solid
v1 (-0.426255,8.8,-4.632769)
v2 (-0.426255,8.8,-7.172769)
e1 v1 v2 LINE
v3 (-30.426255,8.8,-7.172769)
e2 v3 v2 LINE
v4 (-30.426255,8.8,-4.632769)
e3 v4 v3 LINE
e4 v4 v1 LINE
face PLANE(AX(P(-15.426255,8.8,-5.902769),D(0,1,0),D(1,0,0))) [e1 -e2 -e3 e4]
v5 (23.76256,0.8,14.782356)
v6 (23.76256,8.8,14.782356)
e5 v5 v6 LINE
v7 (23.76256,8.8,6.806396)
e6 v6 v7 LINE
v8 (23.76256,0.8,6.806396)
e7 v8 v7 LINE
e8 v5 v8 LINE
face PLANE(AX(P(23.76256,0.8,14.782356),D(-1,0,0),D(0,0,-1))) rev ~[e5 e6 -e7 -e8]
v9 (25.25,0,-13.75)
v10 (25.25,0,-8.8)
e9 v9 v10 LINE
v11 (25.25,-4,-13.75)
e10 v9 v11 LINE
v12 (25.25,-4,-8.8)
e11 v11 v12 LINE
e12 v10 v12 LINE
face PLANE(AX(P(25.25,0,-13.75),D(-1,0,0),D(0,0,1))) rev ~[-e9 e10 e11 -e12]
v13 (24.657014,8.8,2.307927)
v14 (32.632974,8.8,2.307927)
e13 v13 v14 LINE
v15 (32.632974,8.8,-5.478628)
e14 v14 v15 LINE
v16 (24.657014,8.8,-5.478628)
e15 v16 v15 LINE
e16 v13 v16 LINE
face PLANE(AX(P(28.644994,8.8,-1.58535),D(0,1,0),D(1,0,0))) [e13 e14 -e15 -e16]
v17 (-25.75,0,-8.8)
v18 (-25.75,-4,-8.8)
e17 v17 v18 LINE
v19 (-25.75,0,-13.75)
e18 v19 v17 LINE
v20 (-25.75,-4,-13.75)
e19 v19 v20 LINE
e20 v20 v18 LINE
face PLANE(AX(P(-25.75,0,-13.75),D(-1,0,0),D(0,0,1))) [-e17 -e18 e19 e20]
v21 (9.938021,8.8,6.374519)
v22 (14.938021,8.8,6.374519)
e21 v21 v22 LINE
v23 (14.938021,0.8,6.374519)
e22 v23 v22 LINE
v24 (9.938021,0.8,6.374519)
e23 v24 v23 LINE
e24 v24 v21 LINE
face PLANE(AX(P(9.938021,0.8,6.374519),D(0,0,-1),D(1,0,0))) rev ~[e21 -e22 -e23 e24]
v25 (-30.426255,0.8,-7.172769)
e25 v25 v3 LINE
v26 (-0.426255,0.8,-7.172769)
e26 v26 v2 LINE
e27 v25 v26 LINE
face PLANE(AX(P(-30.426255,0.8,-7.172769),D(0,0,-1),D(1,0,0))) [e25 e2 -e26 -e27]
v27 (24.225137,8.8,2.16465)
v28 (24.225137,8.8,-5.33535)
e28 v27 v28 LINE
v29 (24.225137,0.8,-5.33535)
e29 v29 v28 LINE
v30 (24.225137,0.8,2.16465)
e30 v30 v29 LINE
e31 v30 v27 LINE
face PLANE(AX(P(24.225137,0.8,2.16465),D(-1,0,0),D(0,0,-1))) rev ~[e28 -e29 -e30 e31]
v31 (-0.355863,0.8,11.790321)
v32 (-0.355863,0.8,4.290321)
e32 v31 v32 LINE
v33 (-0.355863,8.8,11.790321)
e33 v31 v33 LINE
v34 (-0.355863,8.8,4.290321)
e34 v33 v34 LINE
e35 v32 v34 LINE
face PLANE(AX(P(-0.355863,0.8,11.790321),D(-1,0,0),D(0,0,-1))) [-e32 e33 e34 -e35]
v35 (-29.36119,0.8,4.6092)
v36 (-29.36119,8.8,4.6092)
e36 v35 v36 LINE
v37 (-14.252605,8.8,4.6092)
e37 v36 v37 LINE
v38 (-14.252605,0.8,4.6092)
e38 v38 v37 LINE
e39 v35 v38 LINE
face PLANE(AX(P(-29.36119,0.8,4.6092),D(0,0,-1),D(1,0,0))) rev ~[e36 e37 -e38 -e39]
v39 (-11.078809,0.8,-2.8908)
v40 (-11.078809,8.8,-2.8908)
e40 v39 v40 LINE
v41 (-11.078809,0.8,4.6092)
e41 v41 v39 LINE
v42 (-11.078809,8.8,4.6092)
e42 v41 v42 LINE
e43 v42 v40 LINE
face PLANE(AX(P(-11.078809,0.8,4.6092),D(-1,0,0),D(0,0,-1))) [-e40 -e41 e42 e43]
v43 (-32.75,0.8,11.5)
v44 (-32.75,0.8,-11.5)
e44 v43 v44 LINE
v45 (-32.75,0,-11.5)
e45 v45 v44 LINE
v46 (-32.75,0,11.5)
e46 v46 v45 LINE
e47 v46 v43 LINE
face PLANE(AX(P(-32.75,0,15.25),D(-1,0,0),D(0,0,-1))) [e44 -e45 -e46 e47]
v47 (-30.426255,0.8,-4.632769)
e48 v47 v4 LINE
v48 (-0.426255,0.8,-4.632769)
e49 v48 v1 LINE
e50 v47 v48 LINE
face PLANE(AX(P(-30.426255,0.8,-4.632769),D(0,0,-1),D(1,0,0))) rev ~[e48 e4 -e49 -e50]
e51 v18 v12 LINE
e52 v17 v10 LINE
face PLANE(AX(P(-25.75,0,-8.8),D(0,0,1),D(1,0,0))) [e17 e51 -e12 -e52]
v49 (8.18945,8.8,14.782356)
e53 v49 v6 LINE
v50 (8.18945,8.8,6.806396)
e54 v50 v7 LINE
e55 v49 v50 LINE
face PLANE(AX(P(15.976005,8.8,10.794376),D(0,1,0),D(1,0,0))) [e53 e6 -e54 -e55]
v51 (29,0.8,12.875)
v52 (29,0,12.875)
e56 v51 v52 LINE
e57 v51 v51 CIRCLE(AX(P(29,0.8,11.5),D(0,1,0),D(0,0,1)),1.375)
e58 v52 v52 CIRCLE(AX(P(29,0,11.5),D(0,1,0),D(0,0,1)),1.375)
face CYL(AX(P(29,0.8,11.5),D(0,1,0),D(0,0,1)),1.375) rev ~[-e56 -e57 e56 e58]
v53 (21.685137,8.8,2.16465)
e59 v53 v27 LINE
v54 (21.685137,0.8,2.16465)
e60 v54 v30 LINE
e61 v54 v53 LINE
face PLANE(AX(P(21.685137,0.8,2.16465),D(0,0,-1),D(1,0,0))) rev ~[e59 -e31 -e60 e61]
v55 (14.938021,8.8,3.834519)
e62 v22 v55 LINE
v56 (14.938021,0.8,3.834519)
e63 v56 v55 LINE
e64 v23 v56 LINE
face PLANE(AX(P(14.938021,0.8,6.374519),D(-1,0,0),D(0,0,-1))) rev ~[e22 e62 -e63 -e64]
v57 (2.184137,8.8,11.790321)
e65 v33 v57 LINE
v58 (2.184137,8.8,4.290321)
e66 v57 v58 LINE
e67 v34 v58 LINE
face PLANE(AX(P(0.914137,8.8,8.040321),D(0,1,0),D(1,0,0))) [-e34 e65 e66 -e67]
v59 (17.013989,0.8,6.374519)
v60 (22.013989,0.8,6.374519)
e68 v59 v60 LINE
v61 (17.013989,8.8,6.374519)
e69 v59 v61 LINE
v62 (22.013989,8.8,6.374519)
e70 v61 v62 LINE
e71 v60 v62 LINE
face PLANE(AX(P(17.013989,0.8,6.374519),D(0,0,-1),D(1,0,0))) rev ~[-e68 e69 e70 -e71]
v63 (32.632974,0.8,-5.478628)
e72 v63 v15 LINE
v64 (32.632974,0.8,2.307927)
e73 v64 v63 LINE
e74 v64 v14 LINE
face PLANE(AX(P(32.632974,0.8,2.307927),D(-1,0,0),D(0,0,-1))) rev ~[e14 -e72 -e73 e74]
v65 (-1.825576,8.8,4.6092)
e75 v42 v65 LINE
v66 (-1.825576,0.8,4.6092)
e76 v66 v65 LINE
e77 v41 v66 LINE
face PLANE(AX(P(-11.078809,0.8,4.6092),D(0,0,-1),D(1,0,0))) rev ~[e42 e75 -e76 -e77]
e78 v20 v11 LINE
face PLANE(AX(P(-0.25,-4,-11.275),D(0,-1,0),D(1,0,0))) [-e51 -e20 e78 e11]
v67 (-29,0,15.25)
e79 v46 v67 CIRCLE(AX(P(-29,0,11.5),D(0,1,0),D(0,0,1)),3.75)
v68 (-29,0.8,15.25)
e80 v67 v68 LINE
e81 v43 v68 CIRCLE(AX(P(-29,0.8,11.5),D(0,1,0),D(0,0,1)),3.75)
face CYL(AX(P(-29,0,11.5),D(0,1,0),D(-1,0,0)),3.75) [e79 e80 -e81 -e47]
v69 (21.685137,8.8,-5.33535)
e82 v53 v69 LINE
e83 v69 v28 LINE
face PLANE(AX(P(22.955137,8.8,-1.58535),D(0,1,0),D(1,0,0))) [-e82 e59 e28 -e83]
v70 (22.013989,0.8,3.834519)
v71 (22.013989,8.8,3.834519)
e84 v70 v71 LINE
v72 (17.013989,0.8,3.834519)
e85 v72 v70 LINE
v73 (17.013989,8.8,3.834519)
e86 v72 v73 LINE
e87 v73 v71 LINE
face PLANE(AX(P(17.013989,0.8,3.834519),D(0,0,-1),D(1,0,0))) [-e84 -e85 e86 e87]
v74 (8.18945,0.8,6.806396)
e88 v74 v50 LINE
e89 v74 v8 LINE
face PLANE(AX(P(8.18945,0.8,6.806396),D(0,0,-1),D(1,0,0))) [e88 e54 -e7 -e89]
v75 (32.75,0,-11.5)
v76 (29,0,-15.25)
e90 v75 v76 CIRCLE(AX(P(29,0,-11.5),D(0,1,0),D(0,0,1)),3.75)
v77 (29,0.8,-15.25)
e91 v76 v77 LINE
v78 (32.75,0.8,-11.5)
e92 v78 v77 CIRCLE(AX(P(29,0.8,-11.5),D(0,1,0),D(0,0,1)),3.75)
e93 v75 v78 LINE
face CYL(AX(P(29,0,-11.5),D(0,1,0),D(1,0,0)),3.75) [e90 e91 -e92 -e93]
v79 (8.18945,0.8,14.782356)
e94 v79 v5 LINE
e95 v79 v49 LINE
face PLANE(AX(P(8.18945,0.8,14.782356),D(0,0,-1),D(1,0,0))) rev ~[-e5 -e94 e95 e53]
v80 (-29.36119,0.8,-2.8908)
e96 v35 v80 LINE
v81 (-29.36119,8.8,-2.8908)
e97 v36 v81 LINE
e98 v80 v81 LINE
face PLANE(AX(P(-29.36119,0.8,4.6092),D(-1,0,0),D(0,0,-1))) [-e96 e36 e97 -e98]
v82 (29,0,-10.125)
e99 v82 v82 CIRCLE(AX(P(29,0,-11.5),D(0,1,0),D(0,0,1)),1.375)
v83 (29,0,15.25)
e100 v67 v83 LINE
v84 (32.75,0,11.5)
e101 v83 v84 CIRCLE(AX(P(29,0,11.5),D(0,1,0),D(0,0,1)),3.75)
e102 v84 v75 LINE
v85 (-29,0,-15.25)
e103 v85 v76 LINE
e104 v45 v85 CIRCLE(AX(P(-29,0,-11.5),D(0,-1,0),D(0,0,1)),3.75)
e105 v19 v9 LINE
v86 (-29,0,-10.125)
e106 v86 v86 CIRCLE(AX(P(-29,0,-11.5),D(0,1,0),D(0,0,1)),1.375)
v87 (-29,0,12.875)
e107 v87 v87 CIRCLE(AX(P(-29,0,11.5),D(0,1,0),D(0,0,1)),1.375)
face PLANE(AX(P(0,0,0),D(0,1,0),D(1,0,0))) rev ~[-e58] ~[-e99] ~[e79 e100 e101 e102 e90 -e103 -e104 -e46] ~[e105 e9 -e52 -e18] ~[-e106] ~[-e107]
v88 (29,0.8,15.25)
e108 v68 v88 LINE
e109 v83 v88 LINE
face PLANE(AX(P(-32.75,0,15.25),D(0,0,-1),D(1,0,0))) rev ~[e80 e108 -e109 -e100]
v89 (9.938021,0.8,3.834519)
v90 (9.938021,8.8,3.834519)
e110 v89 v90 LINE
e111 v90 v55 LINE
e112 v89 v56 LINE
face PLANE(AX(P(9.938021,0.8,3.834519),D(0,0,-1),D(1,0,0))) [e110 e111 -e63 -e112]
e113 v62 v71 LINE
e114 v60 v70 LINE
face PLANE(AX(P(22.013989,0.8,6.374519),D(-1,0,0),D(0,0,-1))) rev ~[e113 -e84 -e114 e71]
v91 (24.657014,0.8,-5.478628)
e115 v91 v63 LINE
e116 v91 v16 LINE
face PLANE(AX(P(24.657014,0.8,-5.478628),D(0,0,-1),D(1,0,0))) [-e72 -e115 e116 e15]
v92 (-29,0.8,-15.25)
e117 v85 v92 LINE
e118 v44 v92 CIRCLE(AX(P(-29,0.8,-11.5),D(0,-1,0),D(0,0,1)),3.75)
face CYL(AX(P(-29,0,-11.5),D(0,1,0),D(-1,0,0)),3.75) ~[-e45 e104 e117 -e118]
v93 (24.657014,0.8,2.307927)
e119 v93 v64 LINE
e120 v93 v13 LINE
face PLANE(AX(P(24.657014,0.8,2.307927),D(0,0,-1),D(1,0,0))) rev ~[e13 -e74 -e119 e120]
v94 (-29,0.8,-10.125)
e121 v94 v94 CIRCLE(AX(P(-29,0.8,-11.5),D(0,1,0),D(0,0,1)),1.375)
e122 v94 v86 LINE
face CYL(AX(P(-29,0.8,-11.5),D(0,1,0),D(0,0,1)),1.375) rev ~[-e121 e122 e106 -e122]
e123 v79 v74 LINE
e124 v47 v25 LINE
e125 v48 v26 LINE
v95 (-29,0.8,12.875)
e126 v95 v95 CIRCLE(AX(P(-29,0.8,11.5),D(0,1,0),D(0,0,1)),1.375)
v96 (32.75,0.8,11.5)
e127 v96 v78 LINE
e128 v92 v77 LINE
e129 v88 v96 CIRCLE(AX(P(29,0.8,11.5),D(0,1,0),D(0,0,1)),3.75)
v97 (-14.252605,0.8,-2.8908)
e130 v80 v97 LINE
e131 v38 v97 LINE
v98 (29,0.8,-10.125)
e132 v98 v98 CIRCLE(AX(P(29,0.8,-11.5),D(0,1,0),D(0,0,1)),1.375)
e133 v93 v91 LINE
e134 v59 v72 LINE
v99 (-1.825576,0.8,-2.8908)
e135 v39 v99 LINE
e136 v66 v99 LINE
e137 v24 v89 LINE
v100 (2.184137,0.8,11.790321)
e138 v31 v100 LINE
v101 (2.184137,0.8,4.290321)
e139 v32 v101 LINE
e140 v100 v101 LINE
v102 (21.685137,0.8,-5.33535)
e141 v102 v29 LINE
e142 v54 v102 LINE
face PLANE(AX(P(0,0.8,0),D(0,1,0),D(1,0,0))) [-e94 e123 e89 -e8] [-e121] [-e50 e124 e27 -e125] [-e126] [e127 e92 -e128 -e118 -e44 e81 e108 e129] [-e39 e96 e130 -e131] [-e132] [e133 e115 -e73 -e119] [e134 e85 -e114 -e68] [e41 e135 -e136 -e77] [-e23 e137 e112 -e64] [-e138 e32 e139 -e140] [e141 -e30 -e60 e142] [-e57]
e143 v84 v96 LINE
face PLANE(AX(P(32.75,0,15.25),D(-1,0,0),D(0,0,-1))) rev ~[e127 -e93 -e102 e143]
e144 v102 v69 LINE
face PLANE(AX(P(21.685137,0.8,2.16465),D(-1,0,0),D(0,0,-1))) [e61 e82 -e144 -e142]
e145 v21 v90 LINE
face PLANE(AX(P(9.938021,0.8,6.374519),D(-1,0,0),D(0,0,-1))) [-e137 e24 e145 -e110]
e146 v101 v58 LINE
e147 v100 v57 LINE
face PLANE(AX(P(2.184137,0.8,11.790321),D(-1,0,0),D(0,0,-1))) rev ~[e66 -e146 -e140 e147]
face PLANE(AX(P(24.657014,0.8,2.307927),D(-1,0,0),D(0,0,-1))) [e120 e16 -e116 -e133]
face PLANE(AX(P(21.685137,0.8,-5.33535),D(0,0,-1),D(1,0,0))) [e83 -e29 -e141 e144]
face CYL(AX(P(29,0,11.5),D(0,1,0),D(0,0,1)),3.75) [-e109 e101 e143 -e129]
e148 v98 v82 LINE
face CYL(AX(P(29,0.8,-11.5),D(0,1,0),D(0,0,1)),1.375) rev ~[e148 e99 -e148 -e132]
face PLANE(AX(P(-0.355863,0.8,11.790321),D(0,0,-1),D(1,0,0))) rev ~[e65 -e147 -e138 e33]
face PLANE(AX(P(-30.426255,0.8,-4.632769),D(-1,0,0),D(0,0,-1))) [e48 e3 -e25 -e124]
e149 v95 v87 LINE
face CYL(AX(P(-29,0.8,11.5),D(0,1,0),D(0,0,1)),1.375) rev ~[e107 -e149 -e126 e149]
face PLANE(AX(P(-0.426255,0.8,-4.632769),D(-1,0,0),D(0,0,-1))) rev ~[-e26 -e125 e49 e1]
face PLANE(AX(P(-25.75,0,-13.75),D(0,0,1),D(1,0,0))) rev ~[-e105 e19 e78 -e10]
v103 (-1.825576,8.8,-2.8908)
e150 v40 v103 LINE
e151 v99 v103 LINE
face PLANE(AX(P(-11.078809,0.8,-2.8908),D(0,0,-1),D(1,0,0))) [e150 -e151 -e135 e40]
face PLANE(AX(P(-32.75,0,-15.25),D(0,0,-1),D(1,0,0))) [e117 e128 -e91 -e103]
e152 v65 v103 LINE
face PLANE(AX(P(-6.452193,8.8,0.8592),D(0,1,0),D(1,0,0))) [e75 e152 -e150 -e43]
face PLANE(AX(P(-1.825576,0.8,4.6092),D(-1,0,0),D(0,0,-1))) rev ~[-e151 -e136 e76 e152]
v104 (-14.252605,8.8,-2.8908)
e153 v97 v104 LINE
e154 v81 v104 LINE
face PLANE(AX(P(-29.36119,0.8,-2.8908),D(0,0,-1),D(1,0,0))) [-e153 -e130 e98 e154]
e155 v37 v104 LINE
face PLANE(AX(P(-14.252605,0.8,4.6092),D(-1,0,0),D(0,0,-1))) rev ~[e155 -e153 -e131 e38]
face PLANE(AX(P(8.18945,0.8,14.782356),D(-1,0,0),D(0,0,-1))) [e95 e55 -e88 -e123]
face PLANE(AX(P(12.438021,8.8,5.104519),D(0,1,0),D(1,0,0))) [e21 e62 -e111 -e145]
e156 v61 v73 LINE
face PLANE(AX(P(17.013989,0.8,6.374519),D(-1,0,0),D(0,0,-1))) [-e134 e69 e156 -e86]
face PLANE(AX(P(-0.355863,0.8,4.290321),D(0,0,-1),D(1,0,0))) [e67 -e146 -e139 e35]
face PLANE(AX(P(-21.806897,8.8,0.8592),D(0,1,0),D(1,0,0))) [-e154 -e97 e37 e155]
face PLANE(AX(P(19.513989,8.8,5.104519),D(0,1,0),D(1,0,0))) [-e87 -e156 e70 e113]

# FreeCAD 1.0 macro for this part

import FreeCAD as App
import Part
import Sketcher

V = App.Vector


def edges_at(feature, points):
    """Names of the edges that pass closest to the given points."""
    edges = feature.Shape.Edges
    near = lambda p: min(range(len(edges)), key=lambda i: edges[i].distToShape(Part.Vertex(*p))[0])
    return sorted({f"Edge{near(p) + 1}" for p in points})


def add_polygon(sketch, points):
    """Adds a closed chain of lines whose ends are joined by coincident constraints."""
    first, n = sketch.GeometryCount, len(points)
    for a, b in zip(points, points[1:] + points[:1]):
        sketch.addGeometry(Part.LineSegment(App.Vector(*a, 0), App.Vector(*b, 0)), False)
    for i in range(n):
        sketch.addConstraint(Sketcher.Constraint("Coincident", first + i, 2, first + (i + 1) % n, 1))

doc = App.newDocument("Part")
params = doc.addObject("Spreadsheet::Sheet", "Params")
for row, (alias, value) in enumerate([
    ("sketch1_width", "65.5 mm"),
    ("sketch1_height", "30.5 mm"),
    ("pad1_length", "0.8 mm"),
    ("fillet_radius", "3.75 mm"),
    ("sketch2_diameter", "2.75 mm"),
    ("pocket1_length", "0.8 mm"),
    ("sketch3_width", "30 mm"),
    ("sketch3_width2", "5 mm"),
    ("sketch3_height", "7.5 mm"),
    ("sketch3_width3", "2.54 mm"),
    ("pad2_length", "8 mm"),
    ("sketch4_width", "51 mm"),
    ("sketch4_height", "4.95 mm"),
    ("pad3_length", "4 mm"),
], start=1):
    params.set(f"A{row}", alias)
    params.set(f"B{row}", "=" + value)
    params.setAlias(f"B{row}", alias)

body = doc.addObject("PartDesign::Body", "Body")

# Sketch on XZ plane
sketch1 = body.newObject("Sketcher::SketchObject", "Sketch")
sketch1.AttachmentSupport = (doc.getObject("XZ_Plane"), [""])
sketch1.MapMode = "FlatFace"
add_polygon(sketch1, [(-33, -15), (-33, 15), (33, 15), (33, -15)])  # lines 0-3
sketch1.addConstraint(Sketcher.Constraint("Vertical", 0))
sketch1.addConstraint(Sketcher.Constraint("Horizontal", 1))
sketch1.addConstraint(Sketcher.Constraint("Vertical", 2))
sketch1.addConstraint(Sketcher.Constraint("Horizontal", 3))
sketch1.addConstraint(Sketcher.Constraint("Symmetric", 0, 2, 2, 2, -1, 1))
sketch1.addConstraint(Sketcher.Constraint("DistanceX", 1, 1, 1, 2, 65.5))
sketch1.addConstraint(Sketcher.Constraint("DistanceY", 0, 1, 0, 2, 30.5))
sketch1.setExpression("Constraints[9]", "Params.sketch1_width")
sketch1.setExpression("Constraints[10]", "Params.sketch1_height")
pad1 = body.newObject("PartDesign::Pad", "Pad")
pad1.Profile = sketch1
pad1.setExpression("Length", "Params.pad1_length")
pad1.Reversed = True
doc.recompute()

fillet = body.newObject("PartDesign::Fillet", "Fillet")
fillet.Base = (pad1, edges_at(pad1, [
    (-32.75, 0.4, -15.25),
    (32.75, 0.4, -15.25),
    (32.75, 0.4, 15.25),
    (-32.75, 0.4, 15.25),
]))
fillet.setExpression("Radius", "Params.fillet_radius")

# Sketch on XZ plane
sketch2 = body.newObject("Sketcher::SketchObject", "Sketch001")
sketch2.AttachmentSupport = (doc.getObject("XZ_Plane"), [""])
sketch2.MapMode = "FlatFace"
sketch2.AttachmentOffset = App.Placement(V(0, 0, -0.8), App.Rotation())
sketch2.addGeometry(Part.Circle(V(-29, -11.5, 0), V(0, 0, 1), 1.4), False)
sketch2.addGeometry(Part.Circle(V(-29, 11.5, 0), V(0, 0, 1), 1.4), False)
sketch2.addGeometry(Part.Circle(V(29, 11.5, 0), V(0, 0, 1), 1.4), False)
sketch2.addGeometry(Part.Circle(V(29, -11.5, 0), V(0, 0, 1), 1.4), False)
sketch2.addConstraint(Sketcher.Constraint("Equal", 0, 1))
sketch2.addConstraint(Sketcher.Constraint("Equal", 1, 2))
sketch2.addConstraint(Sketcher.Constraint("Equal", 2, 3))
sketch2.addConstraint(Sketcher.Constraint("Symmetric", 0, 3, 2, 3, -1, 1))
sketch2.addConstraint(Sketcher.Constraint("Symmetric", 1, 3, 3, 3, -1, 1))
sketch2.addConstraint(Sketcher.Constraint("Symmetric", 1, 3, 2, 3, -2))
sketch2.addConstraint(Sketcher.Constraint("Diameter", 0, 2.75))
sketch2.addConstraint(Sketcher.Constraint("DistanceX", 0, 3, -1, 1, 29.0))
sketch2.addConstraint(Sketcher.Constraint("DistanceY", 0, 3, 1, 3, 23.0))
sketch2.setExpression("Constraints[6]", "Params.sketch2_diameter")
pocket1 = body.newObject("PartDesign::Pocket", "Pocket")
pocket1.Profile = sketch2
pocket1.setExpression("Length", "Params.pocket1_length")
pocket1.Reversed = True

# Sketch on XZ plane
sketch3 = body.newObject("Sketcher::SketchObject", "Sketch002")
sketch3.AttachmentSupport = (doc.getObject("XZ_Plane"), [""])
sketch3.MapMode = "FlatFace"
sketch3.AttachmentOffset = App.Placement(V(0, 0, -0.8), App.Rotation())
add_polygon(sketch3, [(-30.4, -7.2), (-30.4, -4.6), (-0.4, -4.6), (-0.4, -7.2)])  # lines 0-3
add_polygon(sketch3, [(-11.1, -2.9), (-11.1, 4.6), (-1.8, 4.6), (-1.8, -2.9)])  # lines 4-7
add_polygon(sketch3, [(-29.4, -2.9), (-29.4, 4.6), (-14.3, 4.6), (-14.3, -2.9)])  # lines 8-11
add_polygon(sketch3, [(-0.4, 4.3), (-0.4, 11.8), (2.2, 11.8), (2.2, 4.3)])  # lines 12-15
add_polygon(sketch3, [(8.2, 6.8), (8.2, 14.8), (23.8, 14.8), (23.8, 6.8)])  # lines 16-19
add_polygon(sketch3, [(21.7, -5.3), (21.7, 2.2), (24.2, 2.2), (24.2, -5.3)])  # lines 20-23
add_polygon(sketch3, [(9.9, 3.8), (9.9, 6.4), (14.9, 6.4), (14.9, 3.8)])  # lines 24-27
add_polygon(sketch3, [(17, 3.8), (17, 6.4), (22, 6.4), (22, 3.8)])  # lines 28-31
add_polygon(sketch3, [(24.7, -5.5), (24.7, 2.3), (32.6, 2.3), (32.6, -5.5)])  # lines 32-35
sketch3.addConstraint(Sketcher.Constraint("Vertical", 0))
sketch3.addConstraint(Sketcher.Constraint("Horizontal", 1))
sketch3.addConstraint(Sketcher.Constraint("Vertical", 2))
sketch3.addConstraint(Sketcher.Constraint("Horizontal", 3))
sketch3.addConstraint(Sketcher.Constraint("Vertical", 4))
sketch3.addConstraint(Sketcher.Constraint("Horizontal", 5))
sketch3.addConstraint(Sketcher.Constraint("Vertical", 6))
sketch3.addConstraint(Sketcher.Constraint("Horizontal", 7))
sketch3.addConstraint(Sketcher.Constraint("Vertical", 8))
sketch3.addConstraint(Sketcher.Constraint("Horizontal", 9))
sketch3.addConstraint(Sketcher.Constraint("Vertical", 10))
sketch3.addConstraint(Sketcher.Constraint("Horizontal", 11))
sketch3.addConstraint(Sketcher.Constraint("Vertical", 12))
sketch3.addConstraint(Sketcher.Constraint("Horizontal", 13))
sketch3.addConstraint(Sketcher.Constraint("Vertical", 14))
sketch3.addConstraint(Sketcher.Constraint("Horizontal", 15))
sketch3.addConstraint(Sketcher.Constraint("Vertical", 16))
sketch3.addConstraint(Sketcher.Constraint("Horizontal", 17))
sketch3.addConstraint(Sketcher.Constraint("Vertical", 18))
sketch3.addConstraint(Sketcher.Constraint("Horizontal", 19))
sketch3.addConstraint(Sketcher.Constraint("Vertical", 20))
sketch3.addConstraint(Sketcher.Constraint("Horizontal", 21))
sketch3.addConstraint(Sketcher.Constraint("Vertical", 22))
sketch3.addConstraint(Sketcher.Constraint("Horizontal", 23))
sketch3.addConstraint(Sketcher.Constraint("Vertical", 24))
sketch3.addConstraint(Sketcher.Constraint("Horizontal", 25))
sketch3.addConstraint(Sketcher.Constraint("Vertical", 26))
sketch3.addConstraint(Sketcher.Constraint("Horizontal", 27))
sketch3.addConstraint(Sketcher.Constraint("Vertical", 28))
sketch3.addConstraint(Sketcher.Constraint("Horizontal", 29))
sketch3.addConstraint(Sketcher.Constraint("Vertical", 30))
sketch3.addConstraint(Sketcher.Constraint("Horizontal", 31))
sketch3.addConstraint(Sketcher.Constraint("Vertical", 32))
sketch3.addConstraint(Sketcher.Constraint("Horizontal", 33))
sketch3.addConstraint(Sketcher.Constraint("Vertical", 34))
sketch3.addConstraint(Sketcher.Constraint("Horizontal", 35))
sketch3.addConstraint(Sketcher.Constraint("Horizontal", 5, 2, 8, 2))
sketch3.addConstraint(Sketcher.Constraint("Horizontal", 7, 2, 10, 2))
sketch3.addConstraint(Sketcher.Constraint("Horizontal", 25, 2, 28, 2))
sketch3.addConstraint(Sketcher.Constraint("Horizontal", 27, 2, 30, 2))
sketch3.addConstraint(Sketcher.Constraint("Equal", 15, 21))
sketch3.addConstraint(Sketcher.Constraint("Equal", 27, 29))
sketch3.addConstraint(Sketcher.Constraint("Equal", 23, 0))
sketch3.addConstraint(Sketcher.Constraint("Equal", 10, 12))
sketch3.addConstraint(Sketcher.Constraint("Equal", 35, 16))
sketch3.addConstraint(Sketcher.Constraint("Equal", 14, 20))
sketch3.addConstraint(Sketcher.Constraint("Equal", 2, 24))
sketch3.addConstraint(Sketcher.Constraint("DistanceX", 1, 1, 1, 2, 30.0))
sketch3.addConstraint(Sketcher.Constraint("DistanceX", 25, 1, 25, 2, 5.0))
sketch3.addConstraint(Sketcher.Constraint("DistanceY", 4, 1, 4, 2, 7.5))
sketch3.addConstraint(Sketcher.Constraint("DistanceX", 13, 1, 13, 2, 2.54))
sketch3.addConstraint(Sketcher.Constraint("DistanceX", 14, 2, 20, 2, 19.501001))
sketch3.addConstraint(Sketcher.Constraint("DistanceX", 17, 1, 17, 2, 15.57311))
sketch3.addConstraint(Sketcher.Constraint("DistanceX", 33, 1, 33, 2, 7.97596))
sketch3.addConstraint(Sketcher.Constraint("DistanceY", -1, 1, 4, 2, 4.6092))
sketch3.addConstraint(Sketcher.Constraint("DistanceX", 5, 1, 5, 2, 9.253233))
sketch3.addConstraint(Sketcher.Constraint("DistanceX", 9, 1, 9, 2, 15.108585))
sketch3.addConstraint(Sketcher.Constraint("DistanceY", 32, 1, 32, 2, 7.786555))
sketch3.addConstraint(Sketcher.Constraint("DistanceY", 0, 2, -1, 1, 4.632769))
sketch3.addConstraint(Sketcher.Constraint("DistanceX", 4, 2, -1, 1, 11.078809))
sketch3.addConstraint(Sketcher.Constraint("DistanceX", 8, 2, -1, 1, 29.36119))
sketch3.addConstraint(Sketcher.Constraint("DistanceY", -1, 1, 12, 2, 11.790321))
sketch3.addConstraint(Sketcher.Constraint("DistanceX", -1, 1, 16, 2, 8.18945))
sketch3.addConstraint(Sketcher.Constraint("DistanceY", -1, 1, 20, 2, 2.16465))
sketch3.addConstraint(Sketcher.Constraint("DistanceX", -1, 1, 24, 2, 9.938021))
sketch3.addConstraint(Sketcher.Constraint("DistanceY", -1, 1, 24, 2, 6.374519))
sketch3.addConstraint(Sketcher.Constraint("DistanceX", -1, 1, 28, 2, 17.013989))
sketch3.addConstraint(Sketcher.Constraint("DistanceX", 5, 2, 1, 2, 1.399321))
sketch3.addConstraint(Sketcher.Constraint("DistanceX", 9, 2, 12, 2, 13.896742))
sketch3.addConstraint(Sketcher.Constraint("DistanceY", 32, 2, 30, 2, 1.526591))
sketch3.addConstraint(Sketcher.Constraint("DistanceY", 32, 2, 18, 2, 4.498468))
sketch3.addConstraint(Sketcher.Constraint("DistanceX", -1, 1, 32, 2, 24.657014))
sketch3.setExpression("Constraints[83]", "Params.sketch3_width")
sketch3.setExpression("Constraints[84]", "Params.sketch3_width2")
sketch3.setExpression("Constraints[85]", "Params.sketch3_height")
sketch3.setExpression("Constraints[86]", "Params.sketch3_width3")
pad2 = body.newObject("PartDesign::Pad", "Pad001")
pad2.Profile = sketch3
pad2.setExpression("Length", "Params.pad2_length")
pad2.Reversed = True

# Sketch on XZ plane
sketch4 = body.newObject("Sketcher::SketchObject", "Sketch003")
sketch4.AttachmentSupport = (doc.getObject("XZ_Plane"), [""])
sketch4.MapMode = "FlatFace"
add_polygon(sketch4, [(-25.8, -8.8), (-25.8, -13.8), (25.2, -13.8), (25.2, -8.8)])  # lines 0-3
sketch4.addConstraint(Sketcher.Constraint("Vertical", 0))
sketch4.addConstraint(Sketcher.Constraint("Horizontal", 1))
sketch4.addConstraint(Sketcher.Constraint("Vertical", 2))
sketch4.addConstraint(Sketcher.Constraint("Horizontal", 3))
sketch4.addConstraint(Sketcher.Constraint("DistanceX", 1, 1, 1, 2, 51.0))
sketch4.addConstraint(Sketcher.Constraint("DistanceY", 0, 2, 0, 1, 4.95))
sketch4.addConstraint(Sketcher.Constraint("DistanceY", 2, 2, -1, 1, 8.8))
sketch4.addConstraint(Sketcher.Constraint("DistanceX", 0, 2, -1, 1, 25.75))
sketch4.setExpression("Constraints[8]", "Params.sketch4_width")
sketch4.setExpression("Constraints[9]", "Params.sketch4_height")
pad3 = body.newObject("PartDesign::Pad", "Pad002")
pad3.Profile = sketch4
pad3.setExpression("Length", "Params.pad3_length")

doc.recompute()
